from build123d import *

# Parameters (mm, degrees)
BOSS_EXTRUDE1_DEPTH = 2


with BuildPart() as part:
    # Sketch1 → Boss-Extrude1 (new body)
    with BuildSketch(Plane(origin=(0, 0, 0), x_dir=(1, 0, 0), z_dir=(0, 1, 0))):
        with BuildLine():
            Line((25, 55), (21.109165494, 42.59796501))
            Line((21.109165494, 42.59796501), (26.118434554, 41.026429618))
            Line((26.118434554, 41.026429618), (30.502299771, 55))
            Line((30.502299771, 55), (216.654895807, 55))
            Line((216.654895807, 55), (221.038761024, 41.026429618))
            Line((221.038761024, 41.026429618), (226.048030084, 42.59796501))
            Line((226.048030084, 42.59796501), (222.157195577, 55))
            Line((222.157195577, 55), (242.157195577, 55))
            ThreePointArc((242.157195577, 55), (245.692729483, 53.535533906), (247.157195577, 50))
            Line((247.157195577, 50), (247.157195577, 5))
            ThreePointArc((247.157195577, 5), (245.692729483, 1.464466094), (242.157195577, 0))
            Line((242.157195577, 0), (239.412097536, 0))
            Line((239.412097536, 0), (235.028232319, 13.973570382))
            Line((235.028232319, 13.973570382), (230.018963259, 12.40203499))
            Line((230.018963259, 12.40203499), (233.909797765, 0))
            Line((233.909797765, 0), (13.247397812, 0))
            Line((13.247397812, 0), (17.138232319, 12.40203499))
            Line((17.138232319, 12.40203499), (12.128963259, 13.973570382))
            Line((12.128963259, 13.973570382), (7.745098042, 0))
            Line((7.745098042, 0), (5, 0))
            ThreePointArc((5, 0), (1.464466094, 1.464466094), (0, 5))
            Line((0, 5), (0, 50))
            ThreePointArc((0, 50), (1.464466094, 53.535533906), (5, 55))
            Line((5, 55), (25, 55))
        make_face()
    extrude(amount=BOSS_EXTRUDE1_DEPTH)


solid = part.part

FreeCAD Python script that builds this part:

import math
import FreeCAD as App
import Part
import Sketcher

V = App.Vector
Q = App.Units.Quantity

doc = App.newDocument("Part")
body = doc.addObject("PartDesign::Body", "Body")

# Sketch on XZ plane
sketch1 = body.newObject("Sketcher::SketchObject", "Sketch")
sketch1.AttachmentSupport = (doc.getObject("XZ_Plane"), [""])
sketch1.MapMode = "FlatFace"
sketch1.addGeometry([
    Part.LineSegment(V(21.109165, -42.597965, 0), V(25, -55, 0)),  # 0
    Part.LineSegment(V(25, -55, 0), V(5, -55, 0)),  # 1
    Part.ArcOfCircle(Part.Circle(V(5, -50, 0), V(0, 0, 1), 5), math.radians(180), math.radians(270)),  # 2
    Part.LineSegment(V(0, -50, 0), V(0, -5, 0)),  # 3
    Part.ArcOfCircle(Part.Circle(V(5, -5, 0), V(0, 0, 1), 5), math.radians(90), math.radians(180)),  # 4
    Part.LineSegment(V(5, 0, 0), V(7.745098, 0, 0)),  # 5
    Part.LineSegment(V(7.745098, 0, 0), V(12.128963, -13.97357, 0)),  # 6
    Part.LineSegment(V(12.128963, -13.97357, 0), V(17.138232, -12.402035, 0)),  # 7
    Part.LineSegment(V(17.138232, -12.402035, 0), V(13.247398, 0, 0)),  # 8
    Part.LineSegment(V(13.247398, 0, 0), V(233.909798, 0, 0)),  # 9
    Part.LineSegment(V(233.909798, 0, 0), V(230.018963, -12.402035, 0)),  # 10
    Part.LineSegment(V(230.018963, -12.402035, 0), V(235.028232, -13.97357, 0)),  # 11
    Part.LineSegment(V(235.028232, -13.97357, 0), V(239.412098, 0, 0)),  # 12
    Part.LineSegment(V(239.412098, 0, 0), V(242.157196, 0, 0)),  # 13
    Part.ArcOfCircle(Part.Circle(V(242.157196, -5, 0), V(0, 0, 1), 5), math.radians(0), math.radians(90)),  # 14
    Part.LineSegment(V(247.157196, -5, 0), V(247.157196, -50, 0)),  # 15
    Part.ArcOfCircle(Part.Circle(V(242.157196, -50, 0), V(0, 0, 1), 5), math.radians(-90), math.radians(0)),  # 16
    Part.LineSegment(V(242.157196, -55, 0), V(222.157196, -55, 0)),  # 17
    Part.LineSegment(V(222.157196, -55, 0), V(226.04803, -42.597965, 0)),  # 18
    Part.LineSegment(V(226.04803, -42.597965, 0), V(221.038761, -41.02643, 0)),  # 19
    Part.LineSegment(V(221.038761, -41.02643, 0), V(216.654896, -55, 0)),  # 20
    Part.LineSegment(V(216.654896, -55, 0), V(30.5023, -55, 0)),  # 21
    Part.LineSegment(V(30.5023, -55, 0), V(26.118435, -41.02643, 0)),  # 22
    Part.LineSegment(V(26.118435, -41.02643, 0), V(21.109165, -42.597965, 0)),  # 23
], False)
sketch1.addConstraint([
    Sketcher.Constraint("Coincident", 0, 2, 1, 1),
    Sketcher.Constraint("Tangent", 1, 2, 2, 2),
    Sketcher.Constraint("Tangent", 2, 1, 3, 1),
    Sketcher.Constraint("Tangent", 3, 2, 4, 2),
    Sketcher.Constraint("Tangent", 4, 1, 5, 1),
    Sketcher.Constraint("Coincident", 5, 2, 6, 1),
    Sketcher.Constraint("Coincident", 6, 2, 7, 1),
    Sketcher.Constraint("Coincident", 7, 2, 8, 1),
    Sketcher.Constraint("Coincident", 8, 2, 9, 1),
    Sketcher.Constraint("Coincident", 9, 2, 10, 1),
    Sketcher.Constraint("Coincident", 10, 2, 11, 1),
    Sketcher.Constraint("Coincident", 11, 2, 12, 1),
    Sketcher.Constraint("Coincident", 12, 2, 13, 1),
    Sketcher.Constraint("Tangent", 13, 2, 14, 2),
    Sketcher.Constraint("Tangent", 14, 1, 15, 1),
    Sketcher.Constraint("Tangent", 15, 2, 16, 2),
    Sketcher.Constraint("Tangent", 16, 1, 17, 1),
    Sketcher.Constraint("Coincident", 17, 2, 18, 1),
    Sketcher.Constraint("Coincident", 18, 2, 19, 1),
    Sketcher.Constraint("Coincident", 19, 2, 20, 1),
    Sketcher.Constraint("Coincident", 20, 2, 21, 1),
    Sketcher.Constraint("Coincident", 21, 2, 22, 1),
    Sketcher.Constraint("Coincident", 22, 2, 23, 1),
    Sketcher.Constraint("Coincident", 23, 2, 0, 1),
    Sketcher.Constraint("Horizontal", 1),
    Sketcher.Constraint("Vertical", 3),
    Sketcher.Constraint("Horizontal", 5),
    Sketcher.Constraint("Horizontal", 9),
    Sketcher.Constraint("Horizontal", 13),
    Sketcher.Constraint("Vertical", 15),
    Sketcher.Constraint("Horizontal", 17),
    Sketcher.Constraint("Horizontal", 21),
    Sketcher.Constraint("Equal", 2, 4),
    Sketcher.Constraint("Equal", 4, 14),
    Sketcher.Constraint("Equal", 14, 16),
    Sketcher.Constraint("PointOnObject", 2, 1, -2),
    Sketcher.Constraint("PointOnObject", 4, 1, -1),
    Sketcher.Constraint("PointOnObject", 8, 2, -1),
    Sketcher.Constraint("PointOnObject", 12, 2, -1),
    Sketcher.Constraint("Parallel", 0, 6),
    Sketcher.Constraint("Perpendicular", 6, 7),
    Sketcher.Constraint("Perpendicular", 7, 8),
    Sketcher.Constraint("Perpendicular", 10, 11),
    Sketcher.Constraint("Perpendicular", 11, 12),
    Sketcher.Constraint("Parallel", 12, 18),
    Sketcher.Constraint("Perpendicular", 18, 19),
    Sketcher.Constraint("Perpendicular", 19, 20),
    Sketcher.Constraint("Parallel", 8, 22),
    Sketcher.Constraint("Perpendicular", 22, 23),
    Sketcher.Constraint("Horizontal", 2, 3, 16, 3),
    Sketcher.Constraint("Horizontal", 7, 2, 10, 2),
    Sketcher.Constraint("Horizontal", 6, 2, 11, 2),
    Sketcher.Constraint("Horizontal", 17, 2, 20, 2),
    Sketcher.Constraint("Horizontal", 19, 2, 22, 2),
    Sketcher.Constraint("Horizontal", 18, 2, 23, 2),
    Sketcher.Constraint("Equal", 5, 13),
    Sketcher.Constraint("Equal", 1, 17),
    Sketcher.Constraint("Equal", 0, 8),
    Sketcher.Constraint("Equal", 8, 10),
    Sketcher.Constraint("Equal", 11, 19),
    Sketcher.Constraint("Radius", 2, Q("5 mm")),
    Sketcher.Constraint("DistanceX", 1, 2, 1, 1, Q("20 mm")),
    Sketcher.Constraint("DistanceY", 3, 1, 3, 2, Q("45 mm")),
    Sketcher.Constraint("Distance", 7, Q("5.25 mm")),
    Sketcher.Constraint("DistanceX", 5, 1, 5, 2, Q("2.745098 mm")),
    Sketcher.Constraint("DistanceX", 9, 1, 9, 2, Q("220.6624 mm")),
    Sketcher.Constraint("Distance", 6, Q("14.6451 mm")),
    Sketcher.Constraint("DistanceX", -1, 1, 21, 2, Q("30.5023 mm")),
])
pad1 = body.newObject("PartDesign::Pad", "Pad")
pad1.Profile = sketch1
pad1.Length = 2
pad1.Reversed = True

doc.recompute()
